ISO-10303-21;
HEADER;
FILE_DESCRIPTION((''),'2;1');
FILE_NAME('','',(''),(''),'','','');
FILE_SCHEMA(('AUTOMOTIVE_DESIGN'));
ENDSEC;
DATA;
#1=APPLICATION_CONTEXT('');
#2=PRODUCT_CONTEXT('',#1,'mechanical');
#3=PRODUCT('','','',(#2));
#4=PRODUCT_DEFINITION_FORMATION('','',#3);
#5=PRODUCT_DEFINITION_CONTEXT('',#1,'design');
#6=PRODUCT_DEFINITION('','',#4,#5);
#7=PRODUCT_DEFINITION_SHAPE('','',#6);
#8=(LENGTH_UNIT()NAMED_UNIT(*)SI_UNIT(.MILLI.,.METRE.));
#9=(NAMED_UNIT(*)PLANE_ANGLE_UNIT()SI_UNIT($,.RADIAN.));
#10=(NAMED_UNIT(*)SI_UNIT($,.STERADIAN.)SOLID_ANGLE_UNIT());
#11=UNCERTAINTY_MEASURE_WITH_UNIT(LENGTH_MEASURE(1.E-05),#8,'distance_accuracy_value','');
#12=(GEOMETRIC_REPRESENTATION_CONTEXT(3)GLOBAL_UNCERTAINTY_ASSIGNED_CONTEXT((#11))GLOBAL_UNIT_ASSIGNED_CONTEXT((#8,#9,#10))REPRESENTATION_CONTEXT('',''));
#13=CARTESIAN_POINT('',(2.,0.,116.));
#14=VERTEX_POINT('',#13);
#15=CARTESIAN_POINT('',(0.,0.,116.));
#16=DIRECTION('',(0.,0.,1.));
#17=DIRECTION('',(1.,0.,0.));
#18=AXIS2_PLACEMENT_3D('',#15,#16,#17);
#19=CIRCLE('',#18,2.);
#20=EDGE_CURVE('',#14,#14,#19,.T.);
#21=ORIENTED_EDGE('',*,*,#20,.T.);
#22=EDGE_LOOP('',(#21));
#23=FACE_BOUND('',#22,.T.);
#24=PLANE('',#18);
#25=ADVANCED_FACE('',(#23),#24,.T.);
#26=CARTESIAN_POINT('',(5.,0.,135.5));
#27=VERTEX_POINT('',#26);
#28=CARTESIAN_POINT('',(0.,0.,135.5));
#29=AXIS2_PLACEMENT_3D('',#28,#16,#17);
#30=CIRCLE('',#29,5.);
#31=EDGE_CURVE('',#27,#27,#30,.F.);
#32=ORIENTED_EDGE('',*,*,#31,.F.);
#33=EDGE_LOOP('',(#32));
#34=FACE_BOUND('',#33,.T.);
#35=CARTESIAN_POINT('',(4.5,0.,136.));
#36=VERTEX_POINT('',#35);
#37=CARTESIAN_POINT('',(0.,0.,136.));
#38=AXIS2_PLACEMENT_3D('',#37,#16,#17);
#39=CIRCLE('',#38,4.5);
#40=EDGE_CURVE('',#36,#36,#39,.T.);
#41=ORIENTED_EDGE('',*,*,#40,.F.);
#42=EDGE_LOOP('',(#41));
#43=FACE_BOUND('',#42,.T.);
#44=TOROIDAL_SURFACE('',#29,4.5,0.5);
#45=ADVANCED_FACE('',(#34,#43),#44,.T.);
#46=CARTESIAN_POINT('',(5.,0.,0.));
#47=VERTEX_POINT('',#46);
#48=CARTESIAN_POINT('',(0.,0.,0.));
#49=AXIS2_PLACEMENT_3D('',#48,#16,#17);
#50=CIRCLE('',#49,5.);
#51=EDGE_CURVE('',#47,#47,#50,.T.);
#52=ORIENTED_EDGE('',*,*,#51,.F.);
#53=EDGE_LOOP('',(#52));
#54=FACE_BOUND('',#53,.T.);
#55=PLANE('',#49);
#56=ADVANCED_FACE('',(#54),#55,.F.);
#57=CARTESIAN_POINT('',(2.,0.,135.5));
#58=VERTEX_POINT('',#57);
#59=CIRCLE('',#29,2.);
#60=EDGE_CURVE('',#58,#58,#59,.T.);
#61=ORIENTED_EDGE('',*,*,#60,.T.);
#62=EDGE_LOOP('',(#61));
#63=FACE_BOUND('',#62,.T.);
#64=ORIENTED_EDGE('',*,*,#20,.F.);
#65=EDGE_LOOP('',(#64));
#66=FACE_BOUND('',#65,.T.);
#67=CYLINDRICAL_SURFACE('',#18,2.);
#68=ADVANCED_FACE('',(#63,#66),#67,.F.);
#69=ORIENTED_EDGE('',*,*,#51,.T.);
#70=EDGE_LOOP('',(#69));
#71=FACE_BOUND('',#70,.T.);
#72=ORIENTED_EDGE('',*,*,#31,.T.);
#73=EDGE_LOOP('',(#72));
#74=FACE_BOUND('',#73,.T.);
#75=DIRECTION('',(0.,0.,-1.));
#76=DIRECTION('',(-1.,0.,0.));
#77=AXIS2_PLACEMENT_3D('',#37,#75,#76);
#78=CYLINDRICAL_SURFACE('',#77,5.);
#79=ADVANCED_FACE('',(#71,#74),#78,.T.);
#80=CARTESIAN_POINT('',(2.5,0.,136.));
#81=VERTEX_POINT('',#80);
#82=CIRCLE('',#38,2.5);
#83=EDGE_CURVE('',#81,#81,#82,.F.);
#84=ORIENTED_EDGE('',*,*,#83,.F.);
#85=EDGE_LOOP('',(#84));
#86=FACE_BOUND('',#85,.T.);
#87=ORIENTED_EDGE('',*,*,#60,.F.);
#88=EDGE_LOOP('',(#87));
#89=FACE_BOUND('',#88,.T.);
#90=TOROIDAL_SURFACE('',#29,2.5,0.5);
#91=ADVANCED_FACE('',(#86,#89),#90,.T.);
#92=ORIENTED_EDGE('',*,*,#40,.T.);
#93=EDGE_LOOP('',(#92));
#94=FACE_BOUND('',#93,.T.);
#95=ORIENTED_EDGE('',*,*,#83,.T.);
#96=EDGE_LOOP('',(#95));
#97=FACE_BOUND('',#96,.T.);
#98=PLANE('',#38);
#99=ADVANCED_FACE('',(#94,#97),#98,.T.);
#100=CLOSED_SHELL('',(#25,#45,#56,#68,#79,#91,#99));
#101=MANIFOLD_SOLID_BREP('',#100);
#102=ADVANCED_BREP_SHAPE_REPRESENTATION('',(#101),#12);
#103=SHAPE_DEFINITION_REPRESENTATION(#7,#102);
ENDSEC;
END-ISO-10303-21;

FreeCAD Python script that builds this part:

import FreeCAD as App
import Part
import Sketcher
from FreeCAD import Vector
Q = App.Units.Quantity


def edges_at(feature, points):
    """Names of the edges that pass closest to the given points."""
    edges = feature.Shape.Edges
    near = lambda p: min(range(len(edges)), key=lambda i: edges[i].distToShape(Part.Vertex(*p))[0])
    return sorted({f"Edge{near(p) + 1}" for p in points})

doc = App.newDocument("Part")
params = doc.addObject("Spreadsheet::Sheet", "Params")
for row, (alias, value) in enumerate([
    ("sketch1_diameter", "10 mm"),
    ("pad1_length", "136 mm"),
    ("sketch2_diameter", "4 mm"),
    ("pocket1_length", "20 mm"),
    ("fillet_radius", "0.5 mm"),
    ("fillet2_radius", "0.5 mm"),
], start=1):
    params.set(f"A{row}", alias)
    params.set(f"B{row}", "=" + value)
    params.setAlias(f"B{row}", alias)

body = doc.addObject("PartDesign::Body", "Body")

# Sketch on XY plane
sketch1 = doc.addObject("Sketcher::SketchObject", "Sketch")
body.addObject(sketch1)
sketch1.AttachmentSupport = (doc.XY_Plane, [""])
sketch1.MapMode = "FlatFace"
sketch1.addGeometry(Part.Circle(Vector(0, 0, 0), Vector(0, 0, 1), 5), False)
sketch1.addConstraint([
    Sketcher.Constraint("Coincident", 0, 3, -1, 1),
    Sketcher.Constraint("Diameter", 0, Q("10 mm")),
])
sketch1.setExpression("Constraints[1]", "Params.sketch1_diameter")
pad1 = doc.addObject("PartDesign::Pad", "Pad")
body.addObject(pad1)
pad1.Profile = sketch1
pad1.setExpression("Length", "Params.pad1_length")

# Sketch on XY plane
sketch2 = doc.addObject("Sketcher::SketchObject", "Sketch001")
body.addObject(sketch2)
sketch2.AttachmentSupport = (doc.XY_Plane, [""])
sketch2.MapMode = "FlatFace"
sketch2.AttachmentOffset = App.Placement(Vector(0, 0, 136), App.Rotation())
sketch2.addGeometry(Part.Circle(Vector(0, 0, 0), Vector(0, 0, 1), 2), False)
sketch2.addConstraint([
    Sketcher.Constraint("Coincident", 0, 3, -1, 1),
    Sketcher.Constraint("Diameter", 0, Q("4 mm")),
])
sketch2.setExpression("Constraints[1]", "Params.sketch2_diameter")
pocket1 = doc.addObject("PartDesign::Pocket", "Pocket")
body.addObject(pocket1)
pocket1.Profile = sketch2
pocket1.setExpression("Length", "Params.pocket1_length")
doc.recompute()

fillet = doc.addObject("PartDesign::Fillet", "Fillet")
body.addObject(fillet)
fillet.Base = (pocket1, edges_at(pocket1, [(-5, 0, 136)]))
fillet.setExpression("Radius", "Params.fillet_radius")
doc.recompute()

fillet2 = doc.addObject("PartDesign::Fillet", "Fillet001")
body.addObject(fillet2)
fillet2.Base = (fillet, edges_at(fillet, [(-2, 0, 136)]))
fillet2.setExpression("Radius", "Params.fillet2_radius")

doc.recompute()
